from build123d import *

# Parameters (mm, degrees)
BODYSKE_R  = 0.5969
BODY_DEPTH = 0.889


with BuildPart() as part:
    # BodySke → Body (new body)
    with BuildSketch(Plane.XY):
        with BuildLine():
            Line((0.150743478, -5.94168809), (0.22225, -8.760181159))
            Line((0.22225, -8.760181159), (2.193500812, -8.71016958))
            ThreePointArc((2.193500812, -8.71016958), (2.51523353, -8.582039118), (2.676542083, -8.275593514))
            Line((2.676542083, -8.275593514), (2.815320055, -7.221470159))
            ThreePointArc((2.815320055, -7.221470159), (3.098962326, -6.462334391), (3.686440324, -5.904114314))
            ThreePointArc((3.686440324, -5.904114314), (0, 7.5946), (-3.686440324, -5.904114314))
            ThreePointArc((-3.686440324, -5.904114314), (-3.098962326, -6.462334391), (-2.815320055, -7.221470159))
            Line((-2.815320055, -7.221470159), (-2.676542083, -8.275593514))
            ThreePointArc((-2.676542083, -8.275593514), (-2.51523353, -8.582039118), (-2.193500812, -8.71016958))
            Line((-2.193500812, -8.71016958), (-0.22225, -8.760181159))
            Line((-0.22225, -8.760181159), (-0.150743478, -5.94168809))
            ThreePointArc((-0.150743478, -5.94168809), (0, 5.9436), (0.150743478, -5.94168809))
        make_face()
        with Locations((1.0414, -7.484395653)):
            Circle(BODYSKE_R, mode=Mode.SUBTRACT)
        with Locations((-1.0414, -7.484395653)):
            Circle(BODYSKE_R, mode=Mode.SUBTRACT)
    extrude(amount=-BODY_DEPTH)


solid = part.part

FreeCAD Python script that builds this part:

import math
import FreeCAD as App
import Part
import Sketcher
Q = App.Units.Quantity

doc = App.newDocument("Part")
body = doc.addObject("PartDesign::Body", "Body")

sketch1 = body.newObject("Sketcher::SketchObject", "Sketch")
sketch1.AttachmentSupport = (doc.getObject("XY_Plane"), [""])
sketch1.MapMode = "FlatFace"
sketch1.addGeometry([
    Part.LineSegment(App.Vector(0.15, -5.94, 0), App.Vector(0.22, -8.76, 0)),
    Part.LineSegment(App.Vector(0.22, -8.76, 0), App.Vector(2.19, -8.71, 0)),
    Part.ArcOfCircle(Part.Circle(App.Vector(2.18, -8.21, 0), App.Vector(0, 0, 1), 0.5), math.radians(-89), math.radians(-8)),
    Part.LineSegment(App.Vector(2.68, -8.28, 0), App.Vector(2.82, -7.22, 0)),
    Part.ArcOfCircle(Part.Circle(App.Vector(4.6, -7.46, 0), App.Vector(0, 0, 1), 1.8), math.radians(121), math.radians(172)),
    Part.ArcOfCircle(Part.Circle(App.Vector(0, 0.34, 0), App.Vector(0, 0, 1), 7.25), math.radians(-59), math.radians(239)),
    Part.ArcOfCircle(Part.Circle(App.Vector(-4.6, -7.46, 0), App.Vector(0, 0, 1), 1.8), math.radians(8), math.radians(59)),
    Part.LineSegment(App.Vector(-2.82, -7.22, 0), App.Vector(-2.68, -8.28, 0)),
    Part.ArcOfCircle(Part.Circle(App.Vector(-2.18, -8.21, 0), App.Vector(0, 0, 1), 0.5), math.radians(-172), math.radians(-91)),
    Part.LineSegment(App.Vector(-2.19, -8.71, 0), App.Vector(-0.22, -8.76, 0)),
    Part.LineSegment(App.Vector(-0.22, -8.76, 0), App.Vector(-0.15, -5.94, 0)),
    Part.ArcOfCircle(Part.Circle(App.Vector(0, 0, 0), App.Vector(0, 0, 1), 5.94), math.radians(-89), math.radians(269)),
    Part.Circle(App.Vector(-1.04, -7.48, 0), App.Vector(0, 0, 1), 0.6),
    Part.Circle(App.Vector(1.04, -7.48, 0), App.Vector(0, 0, 1), 0.6),
], False)
sketch1.addConstraint([
    Sketcher.Constraint("Coincident", 0, 2, 1, 1),
    Sketcher.Constraint("Tangent", 1, 2, 2, 1),
    Sketcher.Constraint("Tangent", 2, 2, 3, 1),
    Sketcher.Constraint("Tangent", 3, 2, 4, 2),
    Sketcher.Constraint("Tangent", 4, 1, 5, 1),
    Sketcher.Constraint("Tangent", 5, 2, 6, 2),
    Sketcher.Constraint("Tangent", 6, 1, 7, 1),
    Sketcher.Constraint("Tangent", 7, 2, 8, 1),
    Sketcher.Constraint("Tangent", 8, 2, 9, 1),
    Sketcher.Constraint("Coincident", 9, 2, 10, 1),
    Sketcher.Constraint("Coincident", 10, 2, 11, 2),
    Sketcher.Constraint("Coincident", 11, 1, 0, 1),
    Sketcher.Constraint("Coincident", 11, 3, -1, 1),
    Sketcher.Constraint("Equal", 4, 6),
    Sketcher.Constraint("Equal", 2, 8),
    Sketcher.Constraint("Equal", 12, 13),
    Sketcher.Constraint("Symmetric", 4, 3, 6, 3, -2),
    Sketcher.Constraint("Symmetric", 2, 3, 8, 3, -2),
    Sketcher.Constraint("Symmetric", 12, 3, 13, 3, -2),
    Sketcher.Constraint("Symmetric", 0, 2, 9, 2, -2),
    Sketcher.Constraint("Perpendicular", 0, 1),
    Sketcher.Constraint("Perpendicular", 9, 10),
    Sketcher.Constraint("Diameter", 12, Q("0.047 in")),
    Sketcher.Constraint("Radius", 11, Q("0.234 in")),
    Sketcher.Constraint("Angle", 3, Q("82.5 deg")),
    Sketcher.Constraint("Radius", 2, Q("0.5 mm")),
    Sketcher.Constraint("Distance", 0, Q("0.111 in")),
    Sketcher.Constraint("DistanceX", 12, 3, -1, 1, Q("0.041 in")),
    Sketcher.Constraint("Radius", 4, Q("1.802957 mm")),
    Sketcher.Constraint("Radius", 5, Q("7.252733 mm")),
    Sketcher.Constraint("DistanceX", 9, 2, 0, 2, Q("0.0175 in")),
    Sketcher.Constraint("DistanceX", -1, 1, 1, 2, Q("2.193501 mm")),
    Sketcher.Constraint("DistanceX", 2, 3, 3, 2, Q("0.6345 mm")),
    Sketcher.Constraint("DistanceX", 2, 2, 4, 1, Q("1.009898 mm")),
    Sketcher.Constraint("DistanceY", 13, 3, 4, 1, Q("1.580281 mm")),
])
pad1 = body.newObject("PartDesign::Pad", "Pad")
pad1.Profile = sketch1
pad1.Length = Q("0.035 in")
pad1.Reversed = True

doc.recompute()
